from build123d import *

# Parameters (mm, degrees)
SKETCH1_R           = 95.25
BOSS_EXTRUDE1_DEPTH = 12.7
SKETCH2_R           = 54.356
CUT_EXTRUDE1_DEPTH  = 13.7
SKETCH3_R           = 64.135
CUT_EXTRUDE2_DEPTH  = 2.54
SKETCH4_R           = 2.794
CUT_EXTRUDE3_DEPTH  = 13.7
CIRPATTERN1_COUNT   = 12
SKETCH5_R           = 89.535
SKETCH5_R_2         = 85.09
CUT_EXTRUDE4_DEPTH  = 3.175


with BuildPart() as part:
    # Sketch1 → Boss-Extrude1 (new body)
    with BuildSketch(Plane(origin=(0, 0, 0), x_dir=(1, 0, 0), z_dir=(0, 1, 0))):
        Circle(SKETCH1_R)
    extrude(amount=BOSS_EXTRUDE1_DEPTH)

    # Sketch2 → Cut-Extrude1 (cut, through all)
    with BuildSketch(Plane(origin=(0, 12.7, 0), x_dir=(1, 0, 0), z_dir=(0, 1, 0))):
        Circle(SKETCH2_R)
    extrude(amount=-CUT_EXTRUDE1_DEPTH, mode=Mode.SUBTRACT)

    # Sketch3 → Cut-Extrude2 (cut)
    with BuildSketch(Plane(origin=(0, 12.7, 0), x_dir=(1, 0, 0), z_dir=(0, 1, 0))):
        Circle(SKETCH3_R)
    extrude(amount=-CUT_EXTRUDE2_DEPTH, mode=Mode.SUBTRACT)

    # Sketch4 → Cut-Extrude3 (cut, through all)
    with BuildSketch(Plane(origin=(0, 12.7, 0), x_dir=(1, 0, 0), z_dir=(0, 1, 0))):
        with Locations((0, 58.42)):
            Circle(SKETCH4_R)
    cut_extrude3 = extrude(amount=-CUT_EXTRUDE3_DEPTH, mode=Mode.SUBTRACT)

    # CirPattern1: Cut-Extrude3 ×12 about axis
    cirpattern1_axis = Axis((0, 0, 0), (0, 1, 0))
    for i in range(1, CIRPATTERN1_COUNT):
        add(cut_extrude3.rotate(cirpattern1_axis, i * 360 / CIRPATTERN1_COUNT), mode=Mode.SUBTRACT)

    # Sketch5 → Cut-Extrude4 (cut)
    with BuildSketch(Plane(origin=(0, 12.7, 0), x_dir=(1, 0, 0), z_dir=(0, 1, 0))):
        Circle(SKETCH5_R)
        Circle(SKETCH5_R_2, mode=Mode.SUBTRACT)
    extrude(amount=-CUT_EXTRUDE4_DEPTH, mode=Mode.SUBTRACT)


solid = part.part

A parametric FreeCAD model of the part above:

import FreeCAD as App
import Part
import Sketcher
Q = App.Units.Quantity

doc = App.newDocument("Part")
body = doc.addObject("PartDesign::Body", "Body")

sketch1 = doc.addObject("Sketcher::SketchObject", "Sketch")
body.addObject(sketch1)
sketch1.AttachmentSupport = (doc.XZ_Plane, [""])
sketch1.MapMode = "FlatFace"
sketch1.addGeometry(Part.Circle(App.Vector(0, 0, 0), App.Vector(0, 0, 1), 95), False)
sketch1.addConstraint(Sketcher.Constraint("Coincident", 0, 3, -1, 1))
sketch1.addConstraint(Sketcher.Constraint("Diameter", 0, Q("7.5 in")))
pad1 = doc.addObject("PartDesign::Pad", "Pad")
body.addObject(pad1)
pad1.Profile = sketch1
pad1.Length = Q("0.5 in")
pad1.Reversed = True

sketch2 = doc.addObject("Sketcher::SketchObject", "Sketch001")
body.addObject(sketch2)
sketch2.AttachmentSupport = (doc.XZ_Plane, [""])
sketch2.MapMode = "FlatFace"
sketch2.AttachmentOffset = App.Placement(App.Vector(0, 0, -0.5 * 25.4), App.Rotation())
sketch2.addGeometry(Part.Circle(App.Vector(0, 0, 0), App.Vector(0, 0, 1), 54), False)
sketch2.addConstraint(Sketcher.Constraint("Coincident", 0, 3, -1, 1))
sketch2.addConstraint(Sketcher.Constraint("Diameter", 0, Q("4.28 in")))
pocket1 = doc.addObject("PartDesign::Pocket", "Pocket")
body.addObject(pocket1)
pocket1.Profile = sketch2
pocket1.Type = "ThroughAll"
pocket1.Reversed = True

sketch3 = doc.addObject("Sketcher::SketchObject", "Sketch002")
body.addObject(sketch3)
sketch3.AttachmentSupport = (doc.XZ_Plane, [""])
sketch3.MapMode = "FlatFace"
sketch3.AttachmentOffset = App.Placement(App.Vector(0, 0, -0.5 * 25.4), App.Rotation())
sketch3.addGeometry(Part.Circle(App.Vector(0, 0, 0), App.Vector(0, 0, 1), 64), False)
sketch3.addConstraint(Sketcher.Constraint("Coincident", 0, 3, -1, 1))
sketch3.addConstraint(Sketcher.Constraint("Diameter", 0, Q("5.05 in")))
pocket2 = doc.addObject("PartDesign::Pocket", "Pocket001")
body.addObject(pocket2)
pocket2.Profile = sketch3
pocket2.Length = Q("0.1 in")
pocket2.Reversed = True

sketch4 = doc.addObject("Sketcher::SketchObject", "Sketch003")
body.addObject(sketch4)
sketch4.AttachmentSupport = (doc.XZ_Plane, [""])
sketch4.MapMode = "FlatFace"
sketch4.AttachmentOffset = App.Placement(App.Vector(0, 0, -0.5 * 25.4), App.Rotation())
sketch4.addGeometry(Part.Circle(App.Vector(0, -58.4, 0), App.Vector(0, 0, 1), 2.8), False)
sketch4.addConstraint(Sketcher.Constraint("PointOnObject", 0, 3, -2))
sketch4.addConstraint(Sketcher.Constraint("Diameter", 0, Q("0.22 in")))
sketch4.addConstraint(Sketcher.Constraint("DistanceY", 0, 3, -1, 1, Q("2.3 in")))
pocket3 = doc.addObject("PartDesign::Pocket", "Pocket002")
body.addObject(pocket3)
pocket3.Profile = sketch4
pocket3.Type = "ThroughAll"
pocket3.Reversed = True
doc.recompute()

polarpattern = doc.addObject("PartDesign::PolarPattern", "PolarPattern")
body.addObject(polarpattern)
polarpattern.Originals = [pocket3]
polarpattern.Axis = (doc.Y_Axis, [""])
polarpattern.Angle = 360
polarpattern.Occurrences = 12
body.Tip = polarpattern

sketch5 = doc.addObject("Sketcher::SketchObject", "Sketch004")
body.addObject(sketch5)
sketch5.AttachmentSupport = (doc.XZ_Plane, [""])
sketch5.MapMode = "FlatFace"
sketch5.AttachmentOffset = App.Placement(App.Vector(0, 0, -0.5 * 25.4), App.Rotation())
sketch5.addGeometry(Part.Circle(App.Vector(0, 0, 0), App.Vector(0, 0, 1), 90), False)
sketch5.addGeometry(Part.Circle(App.Vector(0, 0, 0), App.Vector(0, 0, 1), 85), False)
sketch5.addConstraint(Sketcher.Constraint("Coincident", 0, 3, -1, 1))
sketch5.addConstraint(Sketcher.Constraint("Coincident", 1, 3, -1, 1))
sketch5.addConstraint(Sketcher.Constraint("Diameter", 1, Q("6.7 in")))
sketch5.addConstraint(Sketcher.Constraint("Diameter", 0, Q("7.05 in")))
pocket4 = doc.addObject("PartDesign::Pocket", "Pocket003")
body.addObject(pocket4)
pocket4.Profile = sketch5
pocket4.Length = Q("0.125 in")
pocket4.Reversed = True

doc.recompute()
